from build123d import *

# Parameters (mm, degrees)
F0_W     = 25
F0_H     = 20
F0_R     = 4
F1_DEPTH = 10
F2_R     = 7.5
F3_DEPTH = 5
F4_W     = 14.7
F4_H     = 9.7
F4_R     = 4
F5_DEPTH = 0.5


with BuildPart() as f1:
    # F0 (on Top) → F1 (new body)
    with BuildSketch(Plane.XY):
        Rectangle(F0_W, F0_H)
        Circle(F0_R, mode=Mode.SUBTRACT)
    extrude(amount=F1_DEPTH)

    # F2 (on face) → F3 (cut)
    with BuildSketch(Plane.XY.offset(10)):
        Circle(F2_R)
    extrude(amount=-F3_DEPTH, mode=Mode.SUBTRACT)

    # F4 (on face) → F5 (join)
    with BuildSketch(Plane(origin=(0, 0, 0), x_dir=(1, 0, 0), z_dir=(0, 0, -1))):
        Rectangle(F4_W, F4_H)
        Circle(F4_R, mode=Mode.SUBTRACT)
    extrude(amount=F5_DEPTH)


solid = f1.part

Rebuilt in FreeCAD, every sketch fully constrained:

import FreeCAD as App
import Part
import Sketcher

V = App.Vector

doc = App.newDocument("Part")
body = doc.addObject("PartDesign::Body", "Body")

# Sketch on XY plane
sketch1 = body.newObject("Sketcher::SketchObject", "Sketch")
sketch1.AttachmentSupport = (doc.getObject("XY_Plane"), [""])
sketch1.MapMode = "FlatFace"
sketch1.addGeometry(Part.LineSegment(V(-12.5, 10, 0), V(-12.5, -10, 0)), False)
sketch1.addGeometry(Part.LineSegment(V(-12.5, -10, 0), V(12.5, -10, 0)), False)
sketch1.addGeometry(Part.LineSegment(V(12.5, -10, 0), V(12.5, 10, 0)), False)
sketch1.addGeometry(Part.LineSegment(V(12.5, 10, 0), V(-12.5, 10, 0)), False)
sketch1.addGeometry(Part.Circle(V(0, 0, 0), V(0, 0, 1), 4), False)
sketch1.addConstraint(Sketcher.Constraint("Coincident", 0, 2, 1, 1))
sketch1.addConstraint(Sketcher.Constraint("Coincident", 1, 2, 2, 1))
sketch1.addConstraint(Sketcher.Constraint("Coincident", 2, 2, 3, 1))
sketch1.addConstraint(Sketcher.Constraint("Coincident", 3, 2, 0, 1))
sketch1.addConstraint(Sketcher.Constraint("Vertical", 0))
sketch1.addConstraint(Sketcher.Constraint("Horizontal", 1))
sketch1.addConstraint(Sketcher.Constraint("Vertical", 2))
sketch1.addConstraint(Sketcher.Constraint("Horizontal", 3))
sketch1.addConstraint(Sketcher.Constraint("Coincident", 4, 3, -1, 1))
sketch1.addConstraint(Sketcher.Constraint("Symmetric", 0, 2, 2, 2, -1, 1))
sketch1.addConstraint(Sketcher.Constraint("Diameter", 4, 8.0))
sketch1.addConstraint(Sketcher.Constraint("DistanceX", 1, 1, 1, 2, 25.0))
sketch1.addConstraint(Sketcher.Constraint("DistanceY", 0, 2, 0, 1, 20.0))
pad1 = body.newObject("PartDesign::Pad", "Pad")
pad1.Profile = sketch1
pad1.Length = 10

# Sketch on XY plane
sketch2 = body.newObject("Sketcher::SketchObject", "Sketch001")
sketch2.AttachmentSupport = (doc.getObject("XY_Plane"), [""])
sketch2.MapMode = "FlatFace"
sketch2.AttachmentOffset = App.Placement(V(0, 0, 10), App.Rotation())
sketch2.addGeometry(Part.Circle(V(0, 0, 0), V(0, 0, 1), 7.5), False)
sketch2.addConstraint(Sketcher.Constraint("Coincident", 0, 3, -1, 1))
sketch2.addConstraint(Sketcher.Constraint("Diameter", 0, 15.0))
pocket1 = body.newObject("PartDesign::Pocket", "Pocket")
pocket1.Profile = sketch2
pocket1.Length = 5

# Sketch on XY plane
sketch3 = body.newObject("Sketcher::SketchObject", "Sketch002")
sketch3.AttachmentSupport = (doc.getObject("XY_Plane"), [""])
sketch3.MapMode = "FlatFace"
sketch3.addGeometry(Part.LineSegment(V(-7.35, -4.85, 0), V(-7.35, 4.85, 0)), False)
sketch3.addGeometry(Part.LineSegment(V(-7.35, 4.85, 0), V(7.35, 4.85, 0)), False)
sketch3.addGeometry(Part.LineSegment(V(7.35, 4.85, 0), V(7.35, -4.85, 0)), False)
sketch3.addGeometry(Part.LineSegment(V(7.35, -4.85, 0), V(-7.35, -4.85, 0)), False)
sketch3.addGeometry(Part.Circle(V(0, 0, 0), V(0, 0, 1), 4), False)
sketch3.addConstraint(Sketcher.Constraint("Coincident", 0, 2, 1, 1))
sketch3.addConstraint(Sketcher.Constraint("Coincident", 1, 2, 2, 1))
sketch3.addConstraint(Sketcher.Constraint("Coincident", 2, 2, 3, 1))
sketch3.addConstraint(Sketcher.Constraint("Coincident", 3, 2, 0, 1))
sketch3.addConstraint(Sketcher.Constraint("Vertical", 0))
sketch3.addConstraint(Sketcher.Constraint("Horizontal", 1))
sketch3.addConstraint(Sketcher.Constraint("Vertical", 2))
sketch3.addConstraint(Sketcher.Constraint("Horizontal", 3))
sketch3.addConstraint(Sketcher.Constraint("Coincident", 4, 3, -1, 1))
sketch3.addConstraint(Sketcher.Constraint("Symmetric", 0, 2, 2, 2, -1, 1))
sketch3.addConstraint(Sketcher.Constraint("Diameter", 4, 8.0))
sketch3.addConstraint(Sketcher.Constraint("DistanceX", 1, 1, 1, 2, 14.7))
sketch3.addConstraint(Sketcher.Constraint("DistanceY", 0, 1, 0, 2, 9.7))
pad2 = body.newObject("PartDesign::Pad", "Pad001")
pad2.Profile = sketch3
pad2.Length = 0.5
pad2.Reversed = True

doc.recompute()
